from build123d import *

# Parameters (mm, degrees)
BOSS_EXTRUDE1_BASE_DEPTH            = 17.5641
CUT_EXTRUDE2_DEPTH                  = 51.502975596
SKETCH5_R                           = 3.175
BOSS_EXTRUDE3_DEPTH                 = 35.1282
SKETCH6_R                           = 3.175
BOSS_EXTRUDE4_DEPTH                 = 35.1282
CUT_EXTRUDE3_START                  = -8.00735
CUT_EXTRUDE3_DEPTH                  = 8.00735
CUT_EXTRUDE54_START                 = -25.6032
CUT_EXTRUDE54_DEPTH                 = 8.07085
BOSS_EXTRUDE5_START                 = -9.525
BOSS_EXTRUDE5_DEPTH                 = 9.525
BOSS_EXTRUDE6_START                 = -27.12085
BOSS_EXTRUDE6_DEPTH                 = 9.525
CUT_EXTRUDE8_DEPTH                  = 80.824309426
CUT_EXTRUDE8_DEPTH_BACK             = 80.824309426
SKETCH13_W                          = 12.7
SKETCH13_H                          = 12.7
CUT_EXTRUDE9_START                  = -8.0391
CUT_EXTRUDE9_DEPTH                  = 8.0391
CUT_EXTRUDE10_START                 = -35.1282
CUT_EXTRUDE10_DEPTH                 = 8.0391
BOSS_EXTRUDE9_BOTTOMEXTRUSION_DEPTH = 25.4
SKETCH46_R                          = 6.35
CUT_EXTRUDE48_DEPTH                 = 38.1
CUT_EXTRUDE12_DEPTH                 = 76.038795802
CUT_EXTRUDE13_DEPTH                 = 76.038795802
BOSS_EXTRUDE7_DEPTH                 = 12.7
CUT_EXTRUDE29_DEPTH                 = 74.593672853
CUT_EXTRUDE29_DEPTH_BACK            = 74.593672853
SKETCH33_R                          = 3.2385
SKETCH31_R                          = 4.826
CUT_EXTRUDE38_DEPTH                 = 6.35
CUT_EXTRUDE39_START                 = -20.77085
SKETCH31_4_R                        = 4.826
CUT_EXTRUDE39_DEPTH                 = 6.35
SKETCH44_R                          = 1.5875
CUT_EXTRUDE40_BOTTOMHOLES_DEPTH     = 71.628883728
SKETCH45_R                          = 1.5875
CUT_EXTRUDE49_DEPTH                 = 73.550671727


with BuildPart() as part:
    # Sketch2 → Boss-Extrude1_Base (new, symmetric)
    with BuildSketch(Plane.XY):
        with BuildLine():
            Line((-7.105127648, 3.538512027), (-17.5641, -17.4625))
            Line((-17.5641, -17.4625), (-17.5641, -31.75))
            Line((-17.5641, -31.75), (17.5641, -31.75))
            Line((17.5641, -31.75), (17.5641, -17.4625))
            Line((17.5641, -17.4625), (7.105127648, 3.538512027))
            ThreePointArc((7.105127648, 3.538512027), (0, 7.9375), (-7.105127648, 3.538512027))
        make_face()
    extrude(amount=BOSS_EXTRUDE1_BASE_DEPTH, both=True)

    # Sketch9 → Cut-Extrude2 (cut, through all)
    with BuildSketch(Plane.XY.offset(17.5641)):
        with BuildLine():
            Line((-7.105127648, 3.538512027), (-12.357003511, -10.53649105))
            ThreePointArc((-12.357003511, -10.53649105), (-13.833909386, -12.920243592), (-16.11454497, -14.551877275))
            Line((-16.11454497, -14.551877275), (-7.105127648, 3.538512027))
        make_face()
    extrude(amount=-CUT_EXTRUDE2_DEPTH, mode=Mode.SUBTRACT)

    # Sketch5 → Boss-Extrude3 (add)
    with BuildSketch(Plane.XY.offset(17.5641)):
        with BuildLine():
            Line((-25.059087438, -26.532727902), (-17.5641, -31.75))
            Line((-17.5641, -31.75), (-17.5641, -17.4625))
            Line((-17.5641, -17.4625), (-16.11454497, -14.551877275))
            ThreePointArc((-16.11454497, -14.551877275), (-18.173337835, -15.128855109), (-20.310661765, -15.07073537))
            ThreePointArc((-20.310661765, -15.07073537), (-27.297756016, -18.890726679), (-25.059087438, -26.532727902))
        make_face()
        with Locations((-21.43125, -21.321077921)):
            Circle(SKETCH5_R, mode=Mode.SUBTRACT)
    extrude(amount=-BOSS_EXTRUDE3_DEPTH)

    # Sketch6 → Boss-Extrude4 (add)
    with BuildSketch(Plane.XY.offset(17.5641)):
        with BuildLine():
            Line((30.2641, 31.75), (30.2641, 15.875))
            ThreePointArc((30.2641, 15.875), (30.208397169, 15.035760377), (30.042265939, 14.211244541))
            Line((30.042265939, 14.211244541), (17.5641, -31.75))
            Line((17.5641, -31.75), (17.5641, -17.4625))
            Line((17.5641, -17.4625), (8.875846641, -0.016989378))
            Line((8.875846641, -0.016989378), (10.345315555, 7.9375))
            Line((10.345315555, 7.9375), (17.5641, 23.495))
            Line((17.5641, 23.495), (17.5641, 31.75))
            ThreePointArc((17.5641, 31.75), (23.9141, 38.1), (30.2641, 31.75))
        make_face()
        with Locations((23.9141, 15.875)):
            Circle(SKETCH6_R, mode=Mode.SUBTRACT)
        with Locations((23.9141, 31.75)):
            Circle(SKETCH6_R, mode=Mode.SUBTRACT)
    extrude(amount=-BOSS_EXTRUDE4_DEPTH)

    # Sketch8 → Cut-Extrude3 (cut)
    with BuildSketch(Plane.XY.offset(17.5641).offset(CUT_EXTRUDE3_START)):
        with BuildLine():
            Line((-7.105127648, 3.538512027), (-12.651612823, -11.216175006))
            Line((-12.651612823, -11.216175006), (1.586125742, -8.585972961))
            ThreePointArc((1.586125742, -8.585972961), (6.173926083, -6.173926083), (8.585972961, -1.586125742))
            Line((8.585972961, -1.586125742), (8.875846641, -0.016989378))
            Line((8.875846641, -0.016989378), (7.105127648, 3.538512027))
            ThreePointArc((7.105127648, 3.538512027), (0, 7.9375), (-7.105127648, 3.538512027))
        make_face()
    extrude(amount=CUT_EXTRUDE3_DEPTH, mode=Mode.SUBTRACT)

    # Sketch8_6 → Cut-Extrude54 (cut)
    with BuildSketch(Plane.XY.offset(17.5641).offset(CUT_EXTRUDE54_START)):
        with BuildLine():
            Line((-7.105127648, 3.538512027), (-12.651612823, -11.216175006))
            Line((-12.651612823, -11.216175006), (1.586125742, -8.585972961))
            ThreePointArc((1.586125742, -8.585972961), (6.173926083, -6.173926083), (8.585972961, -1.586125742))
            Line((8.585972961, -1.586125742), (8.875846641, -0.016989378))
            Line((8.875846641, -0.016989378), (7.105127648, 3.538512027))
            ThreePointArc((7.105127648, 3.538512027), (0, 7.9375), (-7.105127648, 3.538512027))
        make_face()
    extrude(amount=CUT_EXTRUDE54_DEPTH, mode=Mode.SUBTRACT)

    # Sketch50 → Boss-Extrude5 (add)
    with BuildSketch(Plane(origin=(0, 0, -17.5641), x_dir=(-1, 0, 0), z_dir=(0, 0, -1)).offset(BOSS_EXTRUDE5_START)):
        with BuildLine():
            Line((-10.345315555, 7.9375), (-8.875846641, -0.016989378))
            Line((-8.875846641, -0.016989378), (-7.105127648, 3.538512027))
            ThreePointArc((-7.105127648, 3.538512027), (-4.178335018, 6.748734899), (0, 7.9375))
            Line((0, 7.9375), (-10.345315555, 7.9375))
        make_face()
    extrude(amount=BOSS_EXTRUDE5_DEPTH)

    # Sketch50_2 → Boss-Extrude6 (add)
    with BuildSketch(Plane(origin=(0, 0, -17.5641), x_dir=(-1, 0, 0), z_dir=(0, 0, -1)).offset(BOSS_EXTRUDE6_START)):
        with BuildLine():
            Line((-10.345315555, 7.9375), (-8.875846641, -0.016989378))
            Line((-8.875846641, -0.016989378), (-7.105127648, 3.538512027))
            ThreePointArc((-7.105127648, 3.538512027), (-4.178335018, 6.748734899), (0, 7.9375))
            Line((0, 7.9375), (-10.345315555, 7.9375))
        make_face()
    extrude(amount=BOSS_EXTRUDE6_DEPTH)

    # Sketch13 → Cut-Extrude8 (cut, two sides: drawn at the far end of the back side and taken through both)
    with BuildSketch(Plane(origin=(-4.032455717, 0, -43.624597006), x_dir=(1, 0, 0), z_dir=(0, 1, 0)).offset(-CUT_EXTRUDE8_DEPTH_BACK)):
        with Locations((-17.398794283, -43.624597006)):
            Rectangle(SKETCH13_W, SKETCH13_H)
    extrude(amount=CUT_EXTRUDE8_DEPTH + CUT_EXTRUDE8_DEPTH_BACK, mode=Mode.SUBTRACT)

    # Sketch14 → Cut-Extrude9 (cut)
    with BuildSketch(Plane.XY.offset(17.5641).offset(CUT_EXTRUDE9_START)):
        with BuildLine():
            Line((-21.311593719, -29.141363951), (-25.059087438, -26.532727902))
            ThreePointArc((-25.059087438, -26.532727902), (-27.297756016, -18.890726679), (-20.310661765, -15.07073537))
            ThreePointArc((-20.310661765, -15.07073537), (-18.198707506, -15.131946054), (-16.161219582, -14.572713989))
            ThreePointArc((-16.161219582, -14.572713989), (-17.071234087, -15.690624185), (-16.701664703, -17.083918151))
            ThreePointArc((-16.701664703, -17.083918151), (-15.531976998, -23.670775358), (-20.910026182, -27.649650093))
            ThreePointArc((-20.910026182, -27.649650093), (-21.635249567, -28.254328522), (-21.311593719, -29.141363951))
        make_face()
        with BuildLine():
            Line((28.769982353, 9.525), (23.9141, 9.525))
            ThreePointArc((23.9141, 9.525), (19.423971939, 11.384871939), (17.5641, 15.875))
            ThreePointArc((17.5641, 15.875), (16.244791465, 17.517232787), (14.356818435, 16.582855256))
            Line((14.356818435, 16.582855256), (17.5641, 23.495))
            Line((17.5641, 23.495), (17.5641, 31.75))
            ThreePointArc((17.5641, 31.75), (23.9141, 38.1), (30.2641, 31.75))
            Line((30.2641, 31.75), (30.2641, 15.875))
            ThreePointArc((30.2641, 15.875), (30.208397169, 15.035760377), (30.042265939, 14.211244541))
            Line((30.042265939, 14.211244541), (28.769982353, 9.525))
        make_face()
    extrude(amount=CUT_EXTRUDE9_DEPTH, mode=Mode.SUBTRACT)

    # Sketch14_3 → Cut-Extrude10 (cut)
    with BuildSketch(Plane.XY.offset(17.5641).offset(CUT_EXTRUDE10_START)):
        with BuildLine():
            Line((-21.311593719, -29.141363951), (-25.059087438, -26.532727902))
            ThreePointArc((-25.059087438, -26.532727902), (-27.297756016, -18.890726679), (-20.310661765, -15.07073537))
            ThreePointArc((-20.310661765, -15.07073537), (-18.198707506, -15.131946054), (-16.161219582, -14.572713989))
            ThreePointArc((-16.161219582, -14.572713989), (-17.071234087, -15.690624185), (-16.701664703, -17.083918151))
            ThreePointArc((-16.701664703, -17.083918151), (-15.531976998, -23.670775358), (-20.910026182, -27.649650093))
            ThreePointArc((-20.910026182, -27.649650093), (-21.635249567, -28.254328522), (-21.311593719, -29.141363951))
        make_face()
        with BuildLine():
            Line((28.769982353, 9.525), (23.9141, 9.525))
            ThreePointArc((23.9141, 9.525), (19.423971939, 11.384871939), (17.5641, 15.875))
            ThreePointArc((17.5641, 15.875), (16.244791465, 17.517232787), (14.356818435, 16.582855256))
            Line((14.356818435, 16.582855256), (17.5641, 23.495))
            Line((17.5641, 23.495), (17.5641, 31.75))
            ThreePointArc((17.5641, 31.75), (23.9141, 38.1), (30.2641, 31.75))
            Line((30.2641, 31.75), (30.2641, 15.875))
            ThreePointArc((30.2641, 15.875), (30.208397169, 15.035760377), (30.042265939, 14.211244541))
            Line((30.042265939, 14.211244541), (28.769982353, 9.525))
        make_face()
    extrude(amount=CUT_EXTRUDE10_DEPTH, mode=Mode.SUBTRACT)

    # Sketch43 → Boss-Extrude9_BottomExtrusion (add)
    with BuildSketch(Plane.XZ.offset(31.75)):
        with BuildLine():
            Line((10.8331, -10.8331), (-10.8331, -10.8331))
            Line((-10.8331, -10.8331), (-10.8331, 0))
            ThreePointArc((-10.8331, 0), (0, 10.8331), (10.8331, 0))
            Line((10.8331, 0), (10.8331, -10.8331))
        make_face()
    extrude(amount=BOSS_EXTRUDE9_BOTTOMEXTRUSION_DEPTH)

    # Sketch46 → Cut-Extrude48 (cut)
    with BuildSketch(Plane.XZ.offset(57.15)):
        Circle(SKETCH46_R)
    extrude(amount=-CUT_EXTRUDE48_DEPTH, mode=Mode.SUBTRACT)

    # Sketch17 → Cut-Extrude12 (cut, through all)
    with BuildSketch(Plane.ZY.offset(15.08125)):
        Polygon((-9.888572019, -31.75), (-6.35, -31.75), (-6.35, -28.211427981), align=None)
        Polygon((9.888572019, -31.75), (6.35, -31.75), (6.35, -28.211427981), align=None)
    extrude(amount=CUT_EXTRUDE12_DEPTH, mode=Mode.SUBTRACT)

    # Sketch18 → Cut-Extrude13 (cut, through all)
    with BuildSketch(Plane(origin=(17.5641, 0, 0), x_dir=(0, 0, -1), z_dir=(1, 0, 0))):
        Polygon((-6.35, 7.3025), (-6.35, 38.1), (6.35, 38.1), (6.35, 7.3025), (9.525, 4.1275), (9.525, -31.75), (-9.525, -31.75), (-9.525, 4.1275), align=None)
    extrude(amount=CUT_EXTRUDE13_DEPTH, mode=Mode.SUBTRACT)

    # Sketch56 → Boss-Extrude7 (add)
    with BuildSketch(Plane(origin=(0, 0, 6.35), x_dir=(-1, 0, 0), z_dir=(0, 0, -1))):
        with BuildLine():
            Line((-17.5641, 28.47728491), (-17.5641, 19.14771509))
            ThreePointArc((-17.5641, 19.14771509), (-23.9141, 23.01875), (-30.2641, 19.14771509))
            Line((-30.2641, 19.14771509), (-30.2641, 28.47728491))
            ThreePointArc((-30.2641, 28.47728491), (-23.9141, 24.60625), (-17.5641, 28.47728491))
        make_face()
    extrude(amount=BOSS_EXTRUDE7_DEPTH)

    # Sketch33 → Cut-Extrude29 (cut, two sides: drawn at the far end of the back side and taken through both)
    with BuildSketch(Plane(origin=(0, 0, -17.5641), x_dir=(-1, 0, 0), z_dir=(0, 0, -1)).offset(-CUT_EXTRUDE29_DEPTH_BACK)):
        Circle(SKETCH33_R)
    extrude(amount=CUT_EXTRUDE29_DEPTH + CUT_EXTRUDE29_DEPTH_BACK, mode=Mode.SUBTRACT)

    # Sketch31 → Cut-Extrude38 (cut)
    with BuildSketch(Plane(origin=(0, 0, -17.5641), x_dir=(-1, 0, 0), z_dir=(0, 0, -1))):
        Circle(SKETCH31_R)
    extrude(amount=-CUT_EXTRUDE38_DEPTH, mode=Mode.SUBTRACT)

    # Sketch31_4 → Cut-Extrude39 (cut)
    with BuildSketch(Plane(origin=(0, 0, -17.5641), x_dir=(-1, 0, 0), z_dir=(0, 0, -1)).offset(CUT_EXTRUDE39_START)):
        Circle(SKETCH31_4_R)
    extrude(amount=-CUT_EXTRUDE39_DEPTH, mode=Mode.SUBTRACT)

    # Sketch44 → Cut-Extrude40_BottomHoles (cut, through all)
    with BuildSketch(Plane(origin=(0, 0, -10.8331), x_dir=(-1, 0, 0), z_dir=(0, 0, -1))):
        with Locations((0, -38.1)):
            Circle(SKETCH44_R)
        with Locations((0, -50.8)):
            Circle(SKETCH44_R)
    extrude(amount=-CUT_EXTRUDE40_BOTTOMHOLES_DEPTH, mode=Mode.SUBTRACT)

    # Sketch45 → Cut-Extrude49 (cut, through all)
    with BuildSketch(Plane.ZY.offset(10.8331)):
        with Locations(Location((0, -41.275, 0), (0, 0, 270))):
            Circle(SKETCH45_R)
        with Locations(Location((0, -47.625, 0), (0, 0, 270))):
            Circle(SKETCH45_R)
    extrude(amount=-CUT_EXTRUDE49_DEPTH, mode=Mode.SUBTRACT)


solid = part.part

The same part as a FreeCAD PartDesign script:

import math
import FreeCAD as App
import Part
import Sketcher
from FreeCAD import Vector
Q = App.Units.Quantity

doc = App.newDocument("Part")
body = doc.addObject("PartDesign::Body", "Body")

# Sketch on XY plane
sketch1 = body.newObject("Sketcher::SketchObject", "Sketch")
sketch1.AttachmentSupport = (doc.getObject("XY_Plane"), [""])
sketch1.MapMode = "FlatFace"
sketch1.addGeometry(Part.LineSegment(Vector(-7, 4, 0), Vector(-18, -17, 0)), False)
sketch1.addGeometry(Part.LineSegment(Vector(-18, -17, 0), Vector(-18, -32, 0)), False)
sketch1.addGeometry(Part.LineSegment(Vector(-18, -32, 0), Vector(18, -32, 0)), False)
sketch1.addGeometry(Part.LineSegment(Vector(18, -32, 0), Vector(18, -17, 0)), False)
sketch1.addGeometry(Part.LineSegment(Vector(18, -17, 0), Vector(7, 4, 0)), False)
sketch1.addGeometry(Part.ArcOfCircle(Part.Circle(Vector(0, 0, 0), Vector(0, 0, 1), 8), math.radians(26), math.radians(154)), False)
sketch1.addConstraint(Sketcher.Constraint("Coincident", 0, 2, 1, 1))
sketch1.addConstraint(Sketcher.Constraint("Coincident", 1, 2, 2, 1))
sketch1.addConstraint(Sketcher.Constraint("Coincident", 2, 2, 3, 1))
sketch1.addConstraint(Sketcher.Constraint("Coincident", 3, 2, 4, 1))
sketch1.addConstraint(Sketcher.Constraint("Tangent", 4, 2, 5, 1))
sketch1.addConstraint(Sketcher.Constraint("Tangent", 5, 2, 0, 1))
sketch1.addConstraint(Sketcher.Constraint("Vertical", 1))
sketch1.addConstraint(Sketcher.Constraint("Horizontal", 2))
sketch1.addConstraint(Sketcher.Constraint("Vertical", 3))
sketch1.addConstraint(Sketcher.Constraint("Coincident", 5, 3, -1, 1))
sketch1.addConstraint(Sketcher.Constraint("Symmetric", 0, 2, 3, 2, -2))
sketch1.addConstraint(Sketcher.Constraint("Radius", 5, Q("0.3125 in")))
sketch1.addConstraint(Sketcher.Constraint("DistanceX", 2, 1, 2, 2, Q("1.383 in")))
sketch1.addConstraint(Sketcher.Constraint("DistanceY", 1, 2, 1, 1, Q("0.5625 in")))
sketch1.addConstraint(Sketcher.Constraint("DistanceY", 1, 2, -1, 1, Q("1.25 in")))
pad1 = body.newObject("PartDesign::Pad", "Pad")
pad1.Profile = sketch1
pad1.Length = Q("1.383 in")
pad1.Midplane = True

# Sketch on XY plane
sketch2 = body.newObject("Sketcher::SketchObject", "Sketch001")
sketch2.AttachmentSupport = (doc.getObject("XY_Plane"), [""])
sketch2.MapMode = "FlatFace"
sketch2.AttachmentOffset = App.Placement(Vector(0, 0, 0.6915 * 25.4), App.Rotation())
sketch2.addGeometry(Part.LineSegment(Vector(-12, -11, 0), Vector(-7, 4, 0)), False)
sketch2.addGeometry(Part.LineSegment(Vector(-7, 4, 0), Vector(-16, -15, 0)), False)
sketch2.addGeometry(Part.ArcOfCircle(Part.Circle(Vector(-19, -8, 0), Vector(0, 0, 1), 7), math.radians(-66), math.radians(-20)), False)
sketch2.addConstraint(Sketcher.Constraint("Coincident", 0, 2, 1, 1))
sketch2.addConstraint(Sketcher.Constraint("Coincident", 1, 2, 2, 1))
sketch2.addConstraint(Sketcher.Constraint("Tangent", 2, 2, 0, 1))
sketch2.addConstraint(Sketcher.Constraint("Radius", 2, Q("0.28125 in")))
sketch2.addConstraint(Sketcher.Constraint("DistanceX", 2, 3, -1, 1, Q("0.75 in")))
sketch2.addConstraint(Sketcher.Constraint("DistanceY", 2, 3, -1, 1, Q("0.3165 in")))
sketch2.addConstraint(Sketcher.Constraint("DistanceY", 2, 2, -1, 1, 10.536491))
sketch2.addConstraint(Sketcher.Constraint("DistanceY", 1, 2, 0, 2, 18.090389))
sketch2.addConstraint(Sketcher.Constraint("DistanceX", 1, 2, 2, 2, 3.757541))
pocket1 = body.newObject("PartDesign::Pocket", "Pocket")
pocket1.Profile = sketch2
pocket1.Type = "ThroughAll"

# Sketch on XY plane
sketch3 = body.newObject("Sketcher::SketchObject", "Sketch002")
sketch3.AttachmentSupport = (doc.getObject("XY_Plane"), [""])
sketch3.MapMode = "FlatFace"
sketch3.AttachmentOffset = App.Placement(Vector(0, 0, 0.6915 * 25.4), App.Rotation())
sketch3.addGeometry(Part.LineSegment(Vector(-25.1, -26.5, 0), Vector(-17.6, -31.8, 0)), False)
sketch3.addGeometry(Part.LineSegment(Vector(-17.6, -31.8, 0), Vector(-17.6, -17.5, 0)), False)
sketch3.addGeometry(Part.LineSegment(Vector(-17.6, -17.5, 0), Vector(-16.1, -14.6, 0)), False)
sketch3.addGeometry(Part.ArcOfCircle(Part.Circle(Vector(-19.1, -8, 0), Vector(0, 0, 1), 7.1), math.radians(-100), math.radians(-66)), False)
sketch3.addGeometry(Part.ArcOfCircle(Part.Circle(Vector(-21.4, -21.3, 0), Vector(0, 0, 1), 6.3), math.radians(80), math.radians(235)), False)
sketch3.addGeometry(Part.Circle(Vector(-21.4, -21.3, 0), Vector(0, 0, 1), 3.2), False)
sketch3.addConstraint(Sketcher.Constraint("Coincident", 0, 2, 1, 1))
sketch3.addConstraint(Sketcher.Constraint("Coincident", 1, 2, 2, 1))
sketch3.addConstraint(Sketcher.Constraint("Coincident", 2, 2, 3, 2))
sketch3.addConstraint(Sketcher.Constraint("Tangent", 3, 1, 4, 1))
sketch3.addConstraint(Sketcher.Constraint("Tangent", 4, 2, 0, 1))
sketch3.addConstraint(Sketcher.Constraint("Vertical", 1))
sketch3.addConstraint(Sketcher.Constraint("Coincident", 5, 3, 4, 3))
sketch3.addConstraint(Sketcher.Constraint("Diameter", 5, Q("0.25 in")))
sketch3.addConstraint(Sketcher.Constraint("Radius", 4, Q("0.25 in")))
sketch3.addConstraint(Sketcher.Constraint("Radius", 3, Q("0.28125 in")))
sketch3.addConstraint(Sketcher.Constraint("DistanceY", 1, 1, 1, 2, Q("0.5625 in")))
sketch3.addConstraint(Sketcher.Constraint("DistanceX", 3, 3, -1, 1, Q("0.75 in")))
sketch3.addConstraint(Sketcher.Constraint("DistanceY", 0, 2, -1, 1, Q("1.25 in")))
sketch3.addConstraint(Sketcher.Constraint("DistanceX", 4, 3, -1, 1, Q("0.84375 in")))
sketch3.addConstraint(Sketcher.Constraint("DistanceY", 1, 2, 3, 3, Q("0.371 in")))
sketch3.addConstraint(Sketcher.Constraint("DistanceX", 0, 2, -1, 1, Q("0.6915 in")))
sketch3.addConstraint(Sketcher.Constraint("DistanceY", 4, 3, 2, 2, 6.769201))
pad2 = body.newObject("PartDesign::Pad", "Pad001")
pad2.Profile = sketch3
pad2.Length = Q("1.383 in")
pad2.Reversed = True

# Sketch on XY plane
sketch4 = body.newObject("Sketcher::SketchObject", "Sketch003")
sketch4.AttachmentSupport = (doc.getObject("XY_Plane"), [""])
sketch4.MapMode = "FlatFace"
sketch4.AttachmentOffset = App.Placement(Vector(0, 0, 0.6915 * 25.4), App.Rotation())
sketch4.addGeometry(Part.LineSegment(Vector(30.3, 15.9, 0), Vector(30.3, 31.8, 0)), False)
sketch4.addGeometry(Part.ArcOfCircle(Part.Circle(Vector(23.9, 31.8, 0), Vector(0, 0, 1), 6.3), math.radians(0), math.radians(180)), False)
sketch4.addGeometry(Part.LineSegment(Vector(17.6, 31.8, 0), Vector(17.6, 23.5, 0)), False)
sketch4.addGeometry(Part.LineSegment(Vector(17.6, 23.5, 0), Vector(10.3, 7.9, 0)), False)
sketch4.addGeometry(Part.LineSegment(Vector(10.3, 7.9, 0), Vector(8.9, 0, 0)), False)
sketch4.addGeometry(Part.LineSegment(Vector(8.9, 0, 0), Vector(17.6, -17.5, 0)), False)
sketch4.addGeometry(Part.LineSegment(Vector(17.6, -17.5, 0), Vector(17.6, -31.8, 0)), False)
sketch4.addGeometry(Part.LineSegment(Vector(17.6, -31.8, 0), Vector(30, 14.2, 0)), False)
sketch4.addGeometry(Part.ArcOfCircle(Part.Circle(Vector(23.9, 15.9, 0), Vector(0, 0, 1), 6.4), math.radians(-15.19), math.radians(0)), False)
sketch4.addGeometry(Part.Circle(Vector(23.9, 15.9, 0), Vector(0, 0, 1), 3.2), False)
sketch4.addGeometry(Part.Circle(Vector(23.9, 31.8, 0), Vector(0, 0, 1), 3.2), False)
sketch4.addConstraint(Sketcher.Constraint("Tangent", 0, 2, 1, 1))
sketch4.addConstraint(Sketcher.Constraint("Tangent", 1, 2, 2, 1))
sketch4.addConstraint(Sketcher.Constraint("Coincident", 2, 2, 3, 1))
sketch4.addConstraint(Sketcher.Constraint("Coincident", 3, 2, 4, 1))
sketch4.addConstraint(Sketcher.Constraint("Coincident", 4, 2, 5, 1))
sketch4.addConstraint(Sketcher.Constraint("Coincident", 5, 2, 6, 1))
sketch4.addConstraint(Sketcher.Constraint("Coincident", 6, 2, 7, 1))
sketch4.addConstraint(Sketcher.Constraint("Tangent", 7, 2, 8, 1))
sketch4.addConstraint(Sketcher.Constraint("Tangent", 8, 2, 0, 1))
sketch4.addConstraint(Sketcher.Constraint("Vertical", 0))
sketch4.addConstraint(Sketcher.Constraint("Vertical", 2))
sketch4.addConstraint(Sketcher.Constraint("Vertical", 6))
sketch4.addConstraint(Sketcher.Constraint("Coincident", 9, 3, 8, 3))
sketch4.addConstraint(Sketcher.Constraint("Coincident", 10, 3, 1, 3))
sketch4.addConstraint(Sketcher.Constraint("Equal", 1, 8))
sketch4.addConstraint(Sketcher.Constraint("Equal", 9, 10))
sketch4.addConstraint(Sketcher.Constraint("Symmetric", 1, 2, 6, 2, -1))
sketch4.addConstraint(Sketcher.Constraint("Diameter", 9, Q("0.25 in")))
sketch4.addConstraint(Sketcher.Constraint("Radius", 1, Q("0.25 in")))
sketch4.addConstraint(Sketcher.Constraint("DistanceY", 5, 2, 3, 2, Q("1 in")))
sketch4.addConstraint(Sketcher.Constraint("DistanceY", 8, 3, 2, 2, Q("0.3 in")))
sketch4.addConstraint(Sketcher.Constraint("DistanceY", 0, 1, 0, 2, Q("0.625 in")))
sketch4.addConstraint(Sketcher.Constraint("DistanceY", 6, 2, 6, 1, Q("0.5625 in")))
sketch4.addConstraint(Sketcher.Constraint("DistanceY", -1, 1, 1, 3, Q("1.25 in")))
sketch4.addConstraint(Sketcher.Constraint("DistanceX", -1, 1, 1, 3, Q("0.9415 in")))
sketch4.addConstraint(Sketcher.Constraint("Distance", 4, 8.089082))
sketch4.addConstraint(Sketcher.Constraint("Distance", 5, 19.489269))
sketch4.addConstraint(Sketcher.Constraint("DistanceY", 4, 2, -1, 1, 0.016989))
pad3 = body.newObject("PartDesign::Pad", "Pad002")
pad3.Profile = sketch4
pad3.Length = Q("1.383 in")
pad3.Reversed = True

# Sketch on XY plane
sketch5 = body.newObject("Sketcher::SketchObject", "Sketch004")
sketch5.AttachmentSupport = (doc.getObject("XY_Plane"), [""])
sketch5.MapMode = "FlatFace"
sketch5.AttachmentOffset = App.Placement(Vector(0, 0, 9.55675), App.Rotation())
sketch5.addGeometry(Part.LineSegment(Vector(-7.1, 3.5, 0), Vector(-12.7, -11.2, 0)), False)
sketch5.addGeometry(Part.LineSegment(Vector(-12.7, -11.2, 0), Vector(1.6, -8.6, 0)), False)
sketch5.addGeometry(Part.ArcOfCircle(Part.Circle(Vector(0, 0, 0), Vector(0, 0, 1), 8.7), math.radians(-80), math.radians(-10)), False)
sketch5.addGeometry(Part.LineSegment(Vector(8.6, -1.6, 0), Vector(8.9, 0, 0)), False)
sketch5.addGeometry(Part.LineSegment(Vector(8.9, 0, 0), Vector(7.1, 3.5, 0)), False)
sketch5.addGeometry(Part.ArcOfCircle(Part.Circle(Vector(0, 0, 0), Vector(0, 0, 1), 7.9), math.radians(26), math.radians(154)), False)
sketch5.addConstraint(Sketcher.Constraint("Coincident", 0, 2, 1, 1))
sketch5.addConstraint(Sketcher.Constraint("Tangent", 1, 2, 2, 1))
sketch5.addConstraint(Sketcher.Constraint("Tangent", 2, 2, 3, 1))
sketch5.addConstraint(Sketcher.Constraint("Coincident", 3, 2, 4, 1))
sketch5.addConstraint(Sketcher.Constraint("Tangent", 4, 2, 5, 1))
sketch5.addConstraint(Sketcher.Constraint("Coincident", 5, 2, 0, 1))
sketch5.addConstraint(Sketcher.Constraint("Coincident", 2, 3, -1, 1))
sketch5.addConstraint(Sketcher.Constraint("Coincident", 5, 3, -1, 1))
sketch5.addConstraint(Sketcher.Constraint("Horizontal", 4, 2, 5, 2))
sketch5.addConstraint(Sketcher.Constraint("Radius", 2, Q("0.34375 in")))
sketch5.addConstraint(Sketcher.Constraint("Radius", 5, Q("0.3125 in")))
sketch5.addConstraint(Sketcher.Constraint("DistanceY", 3, 2, 4, 2, 3.555501))
sketch5.addConstraint(Sketcher.Constraint("DistanceX", 1, 2, 4, 2, 5.519002))
sketch5.addConstraint(Sketcher.Constraint("Distance", 0, 15.76275))
sketch5.addConstraint(Sketcher.Constraint("Distance", 4, 3.972032))
pocket2 = body.newObject("PartDesign::Pocket", "Pocket001")
pocket2.Profile = sketch5
pocket2.Length = 8.00735
pocket2.Reversed = True

# Sketch on XY plane
sketch6 = body.newObject("Sketcher::SketchObject", "Sketch005")
sketch6.AttachmentSupport = (doc.getObject("XY_Plane"), [""])
sketch6.MapMode = "FlatFace"
sketch6.AttachmentOffset = App.Placement(Vector(0, 0, -0.3165 * 25.4), App.Rotation())
sketch6.addGeometry(Part.LineSegment(Vector(-7.1, 3.5, 0), Vector(-12.7, -11.2, 0)), False)
sketch6.addGeometry(Part.LineSegment(Vector(-12.7, -11.2, 0), Vector(1.6, -8.6, 0)), False)
sketch6.addGeometry(Part.ArcOfCircle(Part.Circle(Vector(0, 0, 0), Vector(0, 0, 1), 8.7), math.radians(-80), math.radians(-10)), False)
sketch6.addGeometry(Part.LineSegment(Vector(8.6, -1.6, 0), Vector(8.9, 0, 0)), False)
sketch6.addGeometry(Part.LineSegment(Vector(8.9, 0, 0), Vector(7.1, 3.5, 0)), False)
sketch6.addGeometry(Part.ArcOfCircle(Part.Circle(Vector(0, 0, 0), Vector(0, 0, 1), 7.9), math.radians(26), math.radians(154)), False)
sketch6.addConstraint(Sketcher.Constraint("Coincident", 0, 2, 1, 1))
sketch6.addConstraint(Sketcher.Constraint("Tangent", 1, 2, 2, 1))
sketch6.addConstraint(Sketcher.Constraint("Tangent", 2, 2, 3, 1))
sketch6.addConstraint(Sketcher.Constraint("Coincident", 3, 2, 4, 1))
sketch6.addConstraint(Sketcher.Constraint("Tangent", 4, 2, 5, 1))
sketch6.addConstraint(Sketcher.Constraint("Coincident", 5, 2, 0, 1))
sketch6.addConstraint(Sketcher.Constraint("Coincident", 2, 3, -1, 1))
sketch6.addConstraint(Sketcher.Constraint("Coincident", 5, 3, -1, 1))
sketch6.addConstraint(Sketcher.Constraint("Horizontal", 4, 2, 5, 2))
sketch6.addConstraint(Sketcher.Constraint("Radius", 2, Q("0.34375 in")))
sketch6.addConstraint(Sketcher.Constraint("Radius", 5, Q("0.3125 in")))
sketch6.addConstraint(Sketcher.Constraint("DistanceY", 3, 2, 4, 2, 3.555501))
sketch6.addConstraint(Sketcher.Constraint("DistanceX", 1, 2, 4, 2, 5.519002))
sketch6.addConstraint(Sketcher.Constraint("Distance", 0, 15.76275))
sketch6.addConstraint(Sketcher.Constraint("Distance", 4, 3.972032))
pocket3 = body.newObject("PartDesign::Pocket", "Pocket002")
pocket3.Profile = sketch6
pocket3.Length = 8.07085
pocket3.Reversed = True

# Sketch on XY plane
sketch7 = body.newObject("Sketcher::SketchObject", "Sketch006")
sketch7.AttachmentSupport = (doc.getObject("XY_Plane"), [""])
sketch7.MapMode = "FlatFace"
sketch7.AttachmentOffset = App.Placement(Vector(0, 0, -0.3165 * 25.4), App.Rotation())
sketch7.addGeometry(Part.LineSegment(Vector(10.3, 7.9, 0), Vector(8.9, 0, 0)), False)
sketch7.addGeometry(Part.LineSegment(Vector(8.9, 0, 0), Vector(7.1, 3.5, 0)), False)
sketch7.addGeometry(Part.ArcOfCircle(Part.Circle(Vector(0, 0, 0), Vector(0, 0, 1), 7.9), math.radians(26), math.radians(90)), False)
sketch7.addGeometry(Part.LineSegment(Vector(0, 7.9, 0), Vector(10.3, 7.9, 0)), False)
sketch7.addConstraint(Sketcher.Constraint("Coincident", 0, 2, 1, 1))
sketch7.addConstraint(Sketcher.Constraint("Tangent", 1, 2, 2, 1))
sketch7.addConstraint(Sketcher.Constraint("Tangent", 2, 2, 3, 1))
sketch7.addConstraint(Sketcher.Constraint("Coincident", 3, 2, 0, 1))
sketch7.addConstraint(Sketcher.Constraint("Horizontal", 3))
sketch7.addConstraint(Sketcher.Constraint("Coincident", 2, 3, -1, 1))
sketch7.addConstraint(Sketcher.Constraint("Radius", 2, Q("0.3125 in")))
sketch7.addConstraint(Sketcher.Constraint("DistanceY", 0, 2, 1, 2, 3.555501))
sketch7.addConstraint(Sketcher.Constraint("Distance", 0, 8.089082))
sketch7.addConstraint(Sketcher.Constraint("Distance", 1, 3.972032))
pad4 = body.newObject("PartDesign::Pad", "Pad003")
pad4.Profile = sketch7
pad4.Length = Q("0.375 in")
pad4.Reversed = True

# Sketch on XY plane
sketch8 = body.newObject("Sketcher::SketchObject", "Sketch007")
sketch8.AttachmentSupport = (doc.getObject("XY_Plane"), [""])
sketch8.MapMode = "FlatFace"
sketch8.AttachmentOffset = App.Placement(Vector(0, 0, 9.55675), App.Rotation())
sketch8.addGeometry(Part.LineSegment(Vector(10.3, 7.9, 0), Vector(8.9, 0, 0)), False)
sketch8.addGeometry(Part.LineSegment(Vector(8.9, 0, 0), Vector(7.1, 3.5, 0)), False)
sketch8.addGeometry(Part.ArcOfCircle(Part.Circle(Vector(0, 0, 0), Vector(0, 0, 1), 7.9), math.radians(26), math.radians(90)), False)
sketch8.addGeometry(Part.LineSegment(Vector(0, 7.9, 0), Vector(10.3, 7.9, 0)), False)
sketch8.addConstraint(Sketcher.Constraint("Coincident", 0, 2, 1, 1))
sketch8.addConstraint(Sketcher.Constraint("Tangent", 1, 2, 2, 1))
sketch8.addConstraint(Sketcher.Constraint("Tangent", 2, 2, 3, 1))
sketch8.addConstraint(Sketcher.Constraint("Coincident", 3, 2, 0, 1))
sketch8.addConstraint(Sketcher.Constraint("Horizontal", 3))
sketch8.addConstraint(Sketcher.Constraint("Coincident", 2, 3, -1, 1))
sketch8.addConstraint(Sketcher.Constraint("Radius", 2, Q("0.3125 in")))
sketch8.addConstraint(Sketcher.Constraint("DistanceY", 0, 2, 1, 2, 3.555501))
sketch8.addConstraint(Sketcher.Constraint("Distance", 0, 8.089082))
sketch8.addConstraint(Sketcher.Constraint("Distance", 1, 3.972032))
pad5 = body.newObject("PartDesign::Pad", "Pad004")
pad5.Profile = sketch8
pad5.Length = Q("0.375 in")
pad5.Reversed = True

# Sketch on XZ plane
sketch9 = body.newObject("Sketcher::SketchObject", "Sketch008")
sketch9.AttachmentSupport = (doc.getObject("XZ_Plane"), [""])
sketch9.MapMode = "FlatFace"
sketch9.addGeometry(Part.LineSegment(Vector(-28, -6, 0), Vector(-28, 6, 0)), False)
sketch9.addGeometry(Part.LineSegment(Vector(-28, 6, 0), Vector(-15, 6, 0)), False)
sketch9.addGeometry(Part.LineSegment(Vector(-15, 6, 0), Vector(-15, -6, 0)), False)
sketch9.addGeometry(Part.LineSegment(Vector(-15, -6, 0), Vector(-28, -6, 0)), False)
sketch9.addConstraint(Sketcher.Constraint("Coincident", 0, 2, 1, 1))
sketch9.addConstraint(Sketcher.Constraint("Coincident", 1, 2, 2, 1))
sketch9.addConstraint(Sketcher.Constraint("Coincident", 2, 2, 3, 1))
sketch9.addConstraint(Sketcher.Constraint("Coincident", 3, 2, 0, 1))
sketch9.addConstraint(Sketcher.Constraint("Vertical", 0))
sketch9.addConstraint(Sketcher.Constraint("Horizontal", 1))
sketch9.addConstraint(Sketcher.Constraint("Vertical", 2))
sketch9.addConstraint(Sketcher.Constraint("Horizontal", 3))
sketch9.addConstraint(Sketcher.Constraint("Equal", 3, 0))
sketch9.addConstraint(Sketcher.Constraint("DistanceX", 1, 1, 1, 2, Q("0.5 in")))
sketch9.addConstraint(Sketcher.Constraint("DistanceY", -1, 1, 0, 2, Q("0.25 in")))
sketch9.addConstraint(Sketcher.Constraint("DistanceX", 0, 2, -1, 1, Q("1.09375 in")))
pocket4 = body.newObject("PartDesign::Pocket", "Pocket003")
pocket4.Profile = sketch9
pocket4.Type = "ThroughAll"
pocket4.Midplane = True

# Sketch on XY plane
sketch10 = body.newObject("Sketcher::SketchObject", "Sketch009")
sketch10.AttachmentSupport = (doc.getObject("XY_Plane"), [""])
sketch10.MapMode = "FlatFace"
sketch10.AttachmentOffset = App.Placement(Vector(0, 0, 0.375 * 25.4), App.Rotation())
sketch10.addGeometry(Part.LineSegment(Vector(-25.1, -26.5, 0), Vector(-21.3, -29.1, 0)), False)
sketch10.addGeometry(Part.ArcOfCircle(Part.Circle(Vector(-20.8, -28.5, 0), Vector(0, 0, 1), 0.8), math.radians(95), math.radians(235)), False)
sketch10.addGeometry(Part.ArcOfCircle(Part.Circle(Vector(-21.4, -21.3, 0), Vector(0, 0, 1), 6.3), math.radians(-85), math.radians(42)), False)
sketch10.addGeometry(Part.ArcOfCircle(Part.Circle(Vector(-15.5, -16, 0), Vector(0, 0, 1), 1.6), math.radians(114), math.radians(222)), False)
sketch10.addGeometry(Part.ArcOfCircle(Part.Circle(Vector(-19.1, -8, 0), Vector(0, 0, 1), 7.1), math.radians(-100), math.radians(-66)), False)
sketch10.addGeometry(Part.ArcOfCircle(Part.Circle(Vector(-21.4, -21.3, 0), Vector(0, 0, 1), 6.3), math.radians(80), math.radians(235)), False)
sketch10.addGeometry(Part.LineSegment(Vector(23.9, 9.5, 0), Vector(28.8, 9.5, 0)), False)
sketch10.addGeometry(Part.LineSegment(Vector(28.8, 9.5, 0), Vector(30, 14.2, 0)), False)
sketch10.addGeometry(Part.ArcOfCircle(Part.Circle(Vector(23.9, 15.9, 0), Vector(0, 0, 1), 6.4), math.radians(-15.19), math.radians(0)), False)
sketch10.addGeometry(Part.LineSegment(Vector(30.3, 15.9, 0), Vector(30.3, 31.8, 0)), False)
sketch10.addGeometry(Part.ArcOfCircle(Part.Circle(Vector(23.9, 31.8, 0), Vector(0, 0, 1), 6.3), math.radians(0), math.radians(180)), False)
sketch10.addGeometry(Part.LineSegment(Vector(17.6, 31.8, 0), Vector(17.6, 23.5, 0)), False)
sketch10.addGeometry(Part.LineSegment(Vector(17.6, 23.5, 0), Vector(14.4, 16.6, 0)), False)
sketch10.addGeometry(Part.ArcOfCircle(Part.Circle(Vector(15.9, 15.9, 0), Vector(0, 0, 1), 1.7), math.radians(0), math.radians(155)), False)
sketch10.addGeometry(Part.ArcOfCircle(Part.Circle(Vector(23.9, 15.9, 0), Vector(0, 0, 1), 6.3), math.radians(180), math.radians(270)), False)
sketch10.addConstraint(Sketcher.Constraint("Tangent", 0, 2, 1, 2))
sketch10.addConstraint(Sketcher.Constraint("Tangent", 1, 1, 2, 1))
sketch10.addConstraint(Sketcher.Constraint("Tangent", 2, 2, 3, 2))
sketch10.addConstraint(Sketcher.Constraint("Tangent", 3, 1, 4, 2))
sketch10.addConstraint(Sketcher.Constraint("Tangent", 4, 1, 5, 1))
sketch10.addConstraint(Sketcher.Constraint("Tangent", 5, 2, 0, 1))
sketch10.addConstraint(Sketcher.Constraint("Coincident", 6, 2, 7, 1))
sketch10.addConstraint(Sketcher.Constraint("Tangent", 7, 2, 8, 1))
sketch10.addConstraint(Sketcher.Constraint("Tangent", 8, 2, 9, 1))
sketch10.addConstraint(Sketcher.Constraint("Tangent", 9, 2, 10, 1))
sketch10.addConstraint(Sketcher.Constraint("Tangent", 10, 2, 11, 1))
sketch10.addConstraint(Sketcher.Constraint("Coincident", 11, 2, 12, 1))
sketch10.addConstraint(Sketcher.Constraint("Tangent", 12, 2, 13, 2))
sketch10.addConstraint(Sketcher.Constraint("Tangent", 13, 1, 14, 1))
sketch10.addConstraint(Sketcher.Constraint("Tangent", 14, 2, 6, 1))
sketch10.addConstraint(Sketcher.Constraint("Horizontal", 6))
sketch10.addConstraint(Sketcher.Constraint("Vertical", 9))
sketch10.addConstraint(Sketcher.Constraint("Vertical", 11))
sketch10.addConstraint(Sketcher.Constraint("Coincident", 5, 3, 2, 3))
sketch10.addConstraint(Sketcher.Constraint("Coincident", 14, 3, 8, 3))
sketch10.addConstraint(Sketcher.Constraint("Equal", 2, 5))
sketch10.addConstraint(Sketcher.Constraint("Equal", 5, 8))
sketch10.addConstraint(Sketcher.Constraint("Equal", 8, 10))
sketch10.addConstraint(Sketcher.Constraint("Equal", 10, 14))
sketch10.addConstraint(Sketcher.Constraint("Horizontal", 8, 3, 13, 3))
sketch10.addConstraint(Sketcher.Constraint("Radius", 2, Q("0.25 in")))
sketch10.addConstraint(Sketcher.Constraint("Radius", 3, Q("0.0625 in")))
sketch10.addConstraint(Sketcher.Constraint("Radius", 4, Q("0.28125 in")))
sketch10.addConstraint(Sketcher.Constraint("Distance", 12, Q("0.3 in")))
sketch10.addConstraint(Sketcher.Constraint("DistanceY", 9, 1, 9, 2, Q("0.625 in")))
sketch10.addConstraint(Sketcher.Constraint("DistanceX", 4, 3, -1, 1, Q("0.75 in")))
sketch10.addConstraint(Sketcher.Constraint("DistanceY", -1, 1, 10, 3, Q("1.25 in")))
sketch10.addConstraint(Sketcher.Constraint("DistanceX", 2, 3, -1, 1, Q("0.84375 in")))
sketch10.addConstraint(Sketcher.Constraint("DistanceY", 4, 3, -1, 1, Q("0.3165 in")))
sketch10.addConstraint(Sketcher.Constraint("DistanceX", -1, 1, 8, 3, Q("0.9415 in")))
sketch10.addConstraint(Sketcher.Constraint("Radius", 1, 0.820815))
sketch10.addConstraint(Sketcher.Constraint("Radius", 13, 1.681754))
sketch10.addConstraint(Sketcher.Constraint("DistanceX", 2, 3, 1, 3, 0.588598))
sketch10.addConstraint(Sketcher.Constraint("DistanceX", 6, 1, 6, 2, 4.855882))
pocket5 = body.newObject("PartDesign::Pocket", "Pocket004")
pocket5.Profile = sketch10
pocket5.Length = Q("0.3165 in")
pocket5.Reversed = True

# Sketch on XY plane
sketch11 = body.newObject("Sketcher::SketchObject", "Sketch010")
sketch11.AttachmentSupport = (doc.getObject("XY_Plane"), [""])
sketch11.MapMode = "FlatFace"
sketch11.AttachmentOffset = App.Placement(Vector(0, 0, -0.6915 * 25.4), App.Rotation())
sketch11.addGeometry(Part.LineSegment(Vector(-25.1, -26.5, 0), Vector(-21.3, -29.1, 0)), False)
sketch11.addGeometry(Part.ArcOfCircle(Part.Circle(Vector(-20.8, -28.5, 0), Vector(0, 0, 1), 0.8), math.radians(95), math.radians(235)), False)
sketch11.addGeometry(Part.ArcOfCircle(Part.Circle(Vector(-21.4, -21.3, 0), Vector(0, 0, 1), 6.3), math.radians(-85), math.radians(42)), False)
sketch11.addGeometry(Part.ArcOfCircle(Part.Circle(Vector(-15.5, -16, 0), Vector(0, 0, 1), 1.6), math.radians(114), math.radians(222)), False)
sketch11.addGeometry(Part.ArcOfCircle(Part.Circle(Vector(-19.1, -8, 0), Vector(0, 0, 1), 7.1), math.radians(-100), math.radians(-66)), False)
sketch11.addGeometry(Part.ArcOfCircle(Part.Circle(Vector(-21.4, -21.3, 0), Vector(0, 0, 1), 6.3), math.radians(80), math.radians(235)), False)
sketch11.addGeometry(Part.LineSegment(Vector(23.9, 9.5, 0), Vector(28.8, 9.5, 0)), False)
sketch11.addGeometry(Part.LineSegment(Vector(28.8, 9.5, 0), Vector(30, 14.2, 0)), False)
sketch11.addGeometry(Part.ArcOfCircle(Part.Circle(Vector(23.9, 15.9, 0), Vector(0, 0, 1), 6.4), math.radians(-15.19), math.radians(0)), False)
sketch11.addGeometry(Part.LineSegment(Vector(30.3, 15.9, 0), Vector(30.3, 31.8, 0)), False)
sketch11.addGeometry(Part.ArcOfCircle(Part.Circle(Vector(23.9, 31.8, 0), Vector(0, 0, 1), 6.3), math.radians(0), math.radians(180)), False)
sketch11.addGeometry(Part.LineSegment(Vector(17.6, 31.8, 0), Vector(17.6, 23.5, 0)), False)
sketch11.addGeometry(Part.LineSegment(Vector(17.6, 23.5, 0), Vector(14.4, 16.6, 0)), False)
sketch11.addGeometry(Part.ArcOfCircle(Part.Circle(Vector(15.9, 15.9, 0), Vector(0, 0, 1), 1.7), math.radians(0), math.radians(155)), False)
sketch11.addGeometry(Part.ArcOfCircle(Part.Circle(Vector(23.9, 15.9, 0), Vector(0, 0, 1), 6.3), math.radians(180), math.radians(270)), False)
sketch11.addConstraint(Sketcher.Constraint("Tangent", 0, 2, 1, 2))
sketch11.addConstraint(Sketcher.Constraint("Tangent", 1, 1, 2, 1))
sketch11.addConstraint(Sketcher.Constraint("Tangent", 2, 2, 3, 2))
sketch11.addConstraint(Sketcher.Constraint("Tangent", 3, 1, 4, 2))
sketch11.addConstraint(Sketcher.Constraint("Tangent", 4, 1, 5, 1))
sketch11.addConstraint(Sketcher.Constraint("Tangent", 5, 2, 0, 1))
sketch11.addConstraint(Sketcher.Constraint("Coincident", 6, 2, 7, 1))
sketch11.addConstraint(Sketcher.Constraint("Tangent", 7, 2, 8, 1))
sketch11.addConstraint(Sketcher.Constraint("Tangent", 8, 2, 9, 1))
sketch11.addConstraint(Sketcher.Constraint("Tangent", 9, 2, 10, 1))
sketch11.addConstraint(Sketcher.Constraint("Tangent", 10, 2, 11, 1))
sketch11.addConstraint(Sketcher.Constraint("Coincident", 11, 2, 12, 1))
sketch11.addConstraint(Sketcher.Constraint("Tangent", 12, 2, 13, 2))
sketch11.addConstraint(Sketcher.Constraint("Tangent", 13, 1, 14, 1))
sketch11.addConstraint(Sketcher.Constraint("Tangent", 14, 2, 6, 1))
sketch11.addConstraint(Sketcher.Constraint("Horizontal", 6))
sketch11.addConstraint(Sketcher.Constraint("Vertical", 9))
sketch11.addConstraint(Sketcher.Constraint("Vertical", 11))
sketch11.addConstraint(Sketcher.Constraint("Coincident", 5, 3, 2, 3))
sketch11.addConstraint(Sketcher.Constraint("Coincident", 14, 3, 8, 3))
sketch11.addConstraint(Sketcher.Constraint("Equal", 2, 5))
sketch11.addConstraint(Sketcher.Constraint("Equal", 5, 8))
sketch11.addConstraint(Sketcher.Constraint("Equal", 8, 10))
sketch11.addConstraint(Sketcher.Constraint("Equal", 10, 14))
sketch11.addConstraint(Sketcher.Constraint("Horizontal", 8, 3, 13, 3))
sketch11.addConstraint(Sketcher.Constraint("Radius", 2, Q("0.25 in")))
sketch11.addConstraint(Sketcher.Constraint("Radius", 3, Q("0.0625 in")))
sketch11.addConstraint(Sketcher.Constraint("Radius", 4, Q("0.28125 in")))
sketch11.addConstraint(Sketcher.Constraint("Distance", 12, Q("0.3 in")))
sketch11.addConstraint(Sketcher.Constraint("DistanceY", 9, 1, 9, 2, Q("0.625 in")))
sketch11.addConstraint(Sketcher.Constraint("DistanceX", 4, 3, -1, 1, Q("0.75 in")))
sketch11.addConstraint(Sketcher.Constraint("DistanceY", -1, 1, 10, 3, Q("1.25 in")))
sketch11.addConstraint(Sketcher.Constraint("DistanceX", 2, 3, -1, 1, Q("0.84375 in")))
sketch11.addConstraint(Sketcher.Constraint("DistanceY", 4, 3, -1, 1, Q("0.3165 in")))
sketch11.addConstraint(Sketcher.Constraint("DistanceX", -1, 1, 8, 3, Q("0.9415 in")))
sketch11.addConstraint(Sketcher.Constraint("Radius", 1, 0.820815))
sketch11.addConstraint(Sketcher.Constraint("Radius", 13, 1.681754))
sketch11.addConstraint(Sketcher.Constraint("DistanceX", 2, 3, 1, 3, 0.588598))
sketch11.addConstraint(Sketcher.Constraint("DistanceX", 6, 1, 6, 2, 4.855882))
pocket6 = body.newObject("PartDesign::Pocket", "Pocket005")
pocket6.Profile = sketch11
pocket6.Length = Q("0.3165 in")
pocket6.Reversed = True

# Sketch on XZ plane
sketch12 = body.newObject("Sketcher::SketchObject", "Sketch011")
sketch12.AttachmentSupport = (doc.getObject("XZ_Plane"), [""])
sketch12.MapMode = "FlatFace"
sketch12.AttachmentOffset = App.Placement(Vector(0, 0, 1.25 * 25.4), App.Rotation())
sketch12.addGeometry(Part.LineSegment(Vector(-11, -11, 0), Vector(11, -11, 0)), False)
sketch12.addGeometry(Part.LineSegment(Vector(11, -11, 0), Vector(11, 0, 0)), False)
sketch12.addGeometry(Part.ArcOfCircle(Part.Circle(Vector(0, 0, 0), Vector(0, 0, 1), 11), math.radians(0), math.radians(180)), False)
sketch12.addGeometry(Part.LineSegment(Vector(-11, 0, 0), Vector(-11, -11, 0)), False)
sketch12.addConstraint(Sketcher.Constraint("Coincident", 0, 2, 1, 1))
sketch12.addConstraint(Sketcher.Constraint("Tangent", 1, 2, 2, 1))
sketch12.addConstraint(Sketcher.Constraint("Tangent", 2, 2, 3, 1))
sketch12.addConstraint(Sketcher.Constraint("Coincident", 3, 2, 0, 1))
sketch12.addConstraint(Sketcher.Constraint("Horizontal", 0))
sketch12.addConstraint(Sketcher.Constraint("Vertical", 1))
sketch12.addConstraint(Sketcher.Constraint("Vertical", 3))
sketch12.addConstraint(Sketcher.Constraint("Coincident", 2, 3, -1, 1))
sketch12.addConstraint(Sketcher.Constraint("Radius", 2, Q("0.4265 in")))
sketch12.addConstraint(Sketcher.Constraint("DistanceY", 1, 1, 1, 2, Q("0.4265 in")))
pad6 = body.newObject("PartDesign::Pad", "Pad005")
pad6.Profile = sketch12
pad6.Length = Q("1 in")

# Sketch on XZ plane
sketch13 = body.newObject("Sketcher::SketchObject", "Sketch012")
sketch13.AttachmentSupport = (doc.getObject("XZ_Plane"), [""])
sketch13.MapMode = "FlatFace"
sketch13.AttachmentOffset = App.Placement(Vector(0, 0, 2.25 * 25.4), App.Rotation())
sketch13.addGeometry(Part.Circle(Vector(0, 0, 0), Vector(0, 0, 1), 6), False)
sketch13.addConstraint(Sketcher.Constraint("Coincident", 0, 3, -1, 1))
sketch13.addConstraint(Sketcher.Constraint("Diameter", 0, Q("0.5 in")))
pocket7 = body.newObject("PartDesign::Pocket", "Pocket006")
pocket7.Profile = sketch13
pocket7.Length = Q("1.5 in")

# Sketch on YZ plane
sketch14 = body.newObject("Sketcher::SketchObject", "Sketch013")
sketch14.AttachmentSupport = (doc.getObject("YZ_Plane"), [""])
sketch14.MapMode = "FlatFace"
sketch14.AttachmentOffset = App.Placement(Vector(0, 0, -0.59375 * 25.4), App.Rotation())
sketch14.addGeometry(Part.LineSegment(Vector(-31.8, -9.9, 0), Vector(-31.8, -6.3, 0)), False)
sketch14.addGeometry(Part.LineSegment(Vector(-31.8, -6.3, 0), Vector(-28.2, -6.3, 0)), False)
sketch14.addGeometry(Part.LineSegment(Vector(-28.2, -6.3, 0), Vector(-31.8, -9.9, 0)), False)
sketch14.addGeometry(Part.LineSegment(Vector(-31.8, 6.3, 0), Vector(-31.8, 9.9, 0)), False)
sketch14.addGeometry(Part.LineSegment(Vector(-31.8, 9.9, 0), Vector(-28.2, 6.3, 0)), False)
sketch14.addGeometry(Part.LineSegment(Vector(-28.2, 6.3, 0), Vector(-31.8, 6.3, 0)), False)
sketch14.addConstraint(Sketcher.Constraint("Coincident", 0, 2, 1, 1))
sketch14.addConstraint(Sketcher.Constraint("Coincident", 1, 2, 2, 1))
sketch14.addConstraint(Sketcher.Constraint("Coincident", 2, 2, 0, 1))
sketch14.addConstraint(Sketcher.Constraint("Coincident", 3, 2, 4, 1))
sketch14.addConstraint(Sketcher.Constraint("Coincident", 4, 2, 5, 1))
sketch14.addConstraint(Sketcher.Constraint("Coincident", 5, 2, 3, 1))
sketch14.addConstraint(Sketcher.Constraint("Vertical", 0))
sketch14.addConstraint(Sketcher.Constraint("Horizontal", 1))
sketch14.addConstraint(Sketcher.Constraint("Vertical", 3))
sketch14.addConstraint(Sketcher.Constraint("Horizontal", 5))
sketch14.addConstraint(Sketcher.Constraint("Symmetric", 2, 2, 3, 2, -1))
sketch14.addConstraint(Sketcher.Constraint("Symmetric", 1, 2, 4, 2, -1))
sketch14.addConstraint(Sketcher.Constraint("Perpendicular", 2, 4))
sketch14.addConstraint(Sketcher.Constraint("DistanceY", 1, 2, 4, 2, Q("0.5 in")))
sketch14.addConstraint(Sketcher.Constraint("DistanceX", 0, 2, -1, 1, Q("1.25 in")))
sketch14.addConstraint(Sketcher.Constraint("DistanceX", 1, 1, 1, 2, 3.538572))
pocket8 = body.newObject("PartDesign::Pocket", "Pocket007")
pocket8.Profile = sketch14
pocket8.Type = "ThroughAll"

# Sketch on YZ plane
sketch15 = body.newObject("Sketcher::SketchObject", "Sketch014")
sketch15.AttachmentSupport = (doc.getObject("YZ_Plane"), [""])
sketch15.MapMode = "FlatFace"
sketch15.AttachmentOffset = App.Placement(Vector(0, 0, 0.6915 * 25.4), App.Rotation())
sketch15.addGeometry(Part.LineSegment(Vector(38.1, 6.3, 0), Vector(7.3, 6.3, 0)), False)
sketch15.addGeometry(Part.LineSegment(Vector(7.3, 6.3, 0), Vector(4.1, 9.5, 0)), False)
sketch15.addGeometry(Part.LineSegment(Vector(4.1, 9.5, 0), Vector(-31.8, 9.5, 0)), False)
sketch15.addGeometry(Part.LineSegment(Vector(-31.8, 9.5, 0), Vector(-31.8, -9.5, 0)), False)
sketch15.addGeometry(Part.LineSegment(Vector(-31.8, -9.5, 0), Vector(4.1, -9.5, 0)), False)
sketch15.addGeometry(Part.LineSegment(Vector(4.1, -9.5, 0), Vector(7.3, -6.3, 0)), False)
sketch15.addGeometry(Part.LineSegment(Vector(7.3, -6.3, 0), Vector(38.1, -6.3, 0)), False)
sketch15.addGeometry(Part.LineSegment(Vector(38.1, -6.3, 0), Vector(38.1, 6.3, 0)), False)
sketch15.addConstraint(Sketcher.Constraint("Coincident", 0, 2, 1, 1))
sketch15.addConstraint(Sketcher.Constraint("Coincident", 1, 2, 2, 1))
sketch15.addConstraint(Sketcher.Constraint("Coincident", 2, 2, 3, 1))
sketch15.addConstraint(Sketcher.Constraint("Coincident", 3, 2, 4, 1))
sketch15.addConstraint(Sketcher.Constraint("Coincident", 4, 2, 5, 1))
sketch15.addConstraint(Sketcher.Constraint("Coincident", 5, 2, 6, 1))
sketch15.addConstraint(Sketcher.Constraint("Coincident", 6, 2, 7, 1))
sketch15.addConstraint(Sketcher.Constraint("Coincident", 7, 2, 0, 1))
sketch15.addConstraint(Sketcher.Constraint("Horizontal", 0))
sketch15.addConstraint(Sketcher.Constraint("Horizontal", 2))
sketch15.addConstraint(Sketcher.Constraint("Vertical", 3))
sketch15.addConstraint(Sketcher.Constraint("Horizontal", 4))
sketch15.addConstraint(Sketcher.Constraint("Horizontal", 6))
sketch15.addConstraint(Sketcher.Constraint("Vertical", 7))
sketch15.addConstraint(Sketcher.Constraint("Symmetric", 1, 2, 4, 2, -1))
sketch15.addConstraint(Sketcher.Constraint("Symmetric", 0, 2, 5, 2, -1))
sketch15.addConstraint(Sketcher.Constraint("Perpendicular", 1, 5))
sketch15.addConstraint(Sketcher.Constraint("DistanceY", 7, 1, 7, 2, Q("0.5 in")))
sketch15.addConstraint(Sketcher.Constraint("DistanceY", 3, 2, 3, 1, Q("0.75 in")))
sketch15.addConstraint(Sketcher.Constraint("DistanceX", -1, 1, 6, 2, Q("1.5 in")))
sketch15.addConstraint(Sketcher.Constraint("DistanceX", 2, 2, -1, 1, Q("1.25 in")))
sketch15.addConstraint(Sketcher.Constraint("DistanceX", 0, 2, 0, 1, Q("1.2125 in")))
pocket9 = body.newObject("PartDesign::Pocket", "Pocket008")
pocket9.Profile = sketch15
pocket9.Type = "ThroughAll"
pocket9.Reversed = True

# Sketch on XY plane
sketch16 = body.newObject("Sketcher::SketchObject", "Sketch015")
sketch16.AttachmentSupport = (doc.getObject("XY_Plane"), [""])
sketch16.MapMode = "FlatFace"
sketch16.AttachmentOffset = App.Placement(Vector(0, 0, 0.25 * 25.4), App.Rotation())
sketch16.addGeometry(Part.LineSegment(Vector(18, 19, 0), Vector(18, 28, 0)), False)
sketch16.addGeometry(Part.ArcOfCircle(Part.Circle(Vector(24, 32, 0), Vector(0, 0, 1), 7), math.radians(-153), math.radians(-27)), False)
sketch16.addGeometry(Part.LineSegment(Vector(30, 28, 0), Vector(30, 19, 0)), False)
sketch16.addGeometry(Part.ArcOfCircle(Part.Circle(Vector(24, 16, 0), Vector(0, 0, 1), 7), math.radians(27), math.radians(153)), False)
sketch16.addConstraint(Sketcher.Constraint("Coincident", 0, 2, 1, 1))
sketch16.addConstraint(Sketcher.Constraint("Coincident", 1, 2, 2, 1))
sketch16.addConstraint(Sketcher.Constraint("Coincident", 2, 2, 3, 1))
sketch16.addConstraint(Sketcher.Constraint("Coincident", 3, 2, 0, 1))
sketch16.addConstraint(Sketcher.Constraint("Vertical", 0))
sketch16.addConstraint(Sketcher.Constraint("Vertical", 2))
sketch16.addConstraint(Sketcher.Constraint("Equal", 1, 3))
sketch16.addConstraint(Sketcher.Constraint("Horizontal", 0, 2, 1, 2))
sketch16.addConstraint(Sketcher.Constraint("Horizontal", 2, 2, 3, 2))
sketch16.addConstraint(Sketcher.Constraint("Radius", 1, Q("0.28125 in")))
sketch16.addConstraint(Sketcher.Constraint("DistanceX", 0, 2, 1, 2, Q("0.5 in")))
sketch16.addConstraint(Sketcher.Constraint("DistanceY", -1, 1, 1, 3, Q("1.25 in")))
sketch16.addConstraint(Sketcher.Constraint("DistanceY", -1, 1, 3, 3, Q("0.625 in")))
sketch16.addConstraint(Sketcher.Constraint("DistanceX", -1, 1, 1, 3, Q("0.9415 in")))
pad7 = body.newObject("PartDesign::Pad", "Pad006")
pad7.Profile = sketch16
pad7.Length = Q("0.5 in")
pad7.Reversed = True

# Sketch on XY plane
sketch17 = body.newObject("Sketcher::SketchObject", "Sketch016")
sketch17.AttachmentSupport = (doc.getObject("XY_Plane"), [""])
sketch17.MapMode = "FlatFace"
sketch17.AttachmentOffset = App.Placement(Vector(0, 0, -0.6915 * 25.4), App.Rotation())
sketch17.addGeometry(Part.Circle(Vector(0, 0, 0), Vector(0, 0, 1), 3.2), False)
sketch17.addConstraint(Sketcher.Constraint("Coincident", 0, 3, -1, 1))
sketch17.addConstraint(Sketcher.Constraint("Diameter", 0, Q("0.255 in")))
pocket10 = body.newObject("PartDesign::Pocket", "Pocket009")
pocket10.Profile = sketch17
pocket10.Type = "ThroughAll"
pocket10.Midplane = True

# Sketch on XY plane
sketch18 = body.newObject("Sketcher::SketchObject", "Sketch017")
sketch18.AttachmentSupport = (doc.getObject("XY_Plane"), [""])
sketch18.MapMode = "FlatFace"
sketch18.AttachmentOffset = App.Placement(Vector(0, 0, -0.6915 * 25.4), App.Rotation())
sketch18.addGeometry(Part.Circle(Vector(0, 0, 0), Vector(0, 0, 1), 4.8), False)
sketch18.addConstraint(Sketcher.Constraint("Coincident", 0, 3, -1, 1))
sketch18.addConstraint(Sketcher.Constraint("Diameter", 0, Q("0.38 in")))
pocket11 = body.newObject("PartDesign::Pocket", "Pocket010")
pocket11.Profile = sketch18
pocket11.Length = Q("0.25 in")
pocket11.Reversed = True

# Sketch on XY plane
sketch19 = body.newObject("Sketcher::SketchObject", "Sketch018")
sketch19.AttachmentSupport = (doc.getObject("XY_Plane"), [""])
sketch19.MapMode = "FlatFace"
sketch19.AttachmentOffset = App.Placement(Vector(0, 0, 3.20675), App.Rotation())
sketch19.addGeometry(Part.Circle(Vector(0, 0, 0), Vector(0, 0, 1), 4.8), False)
sketch19.addConstraint(Sketcher.Constraint("Coincident", 0, 3, -1, 1))
sketch19.addConstraint(Sketcher.Constraint("Diameter", 0, Q("0.38 in")))
pocket12 = body.newObject("PartDesign::Pocket", "Pocket011")
pocket12.Profile = sketch19
pocket12.Length = Q("0.25 in")
pocket12.Reversed = True

# Sketch on XY plane
sketch20 = body.newObject("Sketcher::SketchObject", "Sketch019")
sketch20.AttachmentSupport = (doc.getObject("XY_Plane"), [""])
sketch20.MapMode = "FlatFace"
sketch20.AttachmentOffset = App.Placement(Vector(0, 0, -0.4265 * 25.4), App.Rotation())
sketch20.addGeometry(Part.Circle(Vector(0, -38.1, 0), Vector(0, 0, 1), 1.6), False)
sketch20.addGeometry(Part.Circle(Vector(0, -50.8, 0), Vector(0, 0, 1), 1.6), False)
sketch20.addConstraint(Sketcher.Constraint("Equal", 0, 1))
sketch20.addConstraint(Sketcher.Constraint("PointOnObject", 0, 3, -2))
sketch20.addConstraint(Sketcher.Constraint("PointOnObject", 1, 3, -2))
sketch20.addConstraint(Sketcher.Constraint("Diameter", 0, Q("0.125 in")))
sketch20.addConstraint(Sketcher.Constraint("DistanceY", 1, 3, -1, 1, Q("2 in")))
sketch20.addConstraint(Sketcher.Constraint("DistanceY", 0, 3, -1, 1, Q("1.5 in")))
pocket13 = body.newObject("PartDesign::Pocket", "Pocket012")
pocket13.Profile = sketch20
pocket13.Type = "ThroughAll"
pocket13.Reversed = True

# Sketch on YZ plane
sketch21 = body.newObject("Sketcher::SketchObject", "Sketch020")
sketch21.AttachmentSupport = (doc.getObject("YZ_Plane"), [""])
sketch21.MapMode = "FlatFace"
sketch21.AttachmentOffset = App.Placement(Vector(0, 0, -0.4265 * 25.4), App.Rotation())
sketch21.addGeometry(Part.Circle(Vector(-41.3, 0, 0), Vector(0, 0, 1), 1.6), False)
sketch21.addGeometry(Part.Circle(Vector(-47.6, 0, 0), Vector(0, 0, 1), 1.6), False)
sketch21.addConstraint(Sketcher.Constraint("Equal", 0, 1))
sketch21.addConstraint(Sketcher.Constraint("PointOnObject", 0, 3, -1))
sketch21.addConstraint(Sketcher.Constraint("PointOnObject", 1, 3, -1))
sketch21.addConstraint(Sketcher.Constraint("Diameter", 0, Q("0.125 in")))
sketch21.addConstraint(Sketcher.Constraint("DistanceX", 1, 3, 0, 3, Q("0.25 in")))
sketch21.addConstraint(Sketcher.Constraint("DistanceX", 0, 3, -1, 1, Q("1.625 in")))
pocket14 = body.newObject("PartDesign::Pocket", "Pocket013")
pocket14.Profile = sketch21
pocket14.Type = "ThroughAll"
pocket14.Reversed = True

doc.recompute()
